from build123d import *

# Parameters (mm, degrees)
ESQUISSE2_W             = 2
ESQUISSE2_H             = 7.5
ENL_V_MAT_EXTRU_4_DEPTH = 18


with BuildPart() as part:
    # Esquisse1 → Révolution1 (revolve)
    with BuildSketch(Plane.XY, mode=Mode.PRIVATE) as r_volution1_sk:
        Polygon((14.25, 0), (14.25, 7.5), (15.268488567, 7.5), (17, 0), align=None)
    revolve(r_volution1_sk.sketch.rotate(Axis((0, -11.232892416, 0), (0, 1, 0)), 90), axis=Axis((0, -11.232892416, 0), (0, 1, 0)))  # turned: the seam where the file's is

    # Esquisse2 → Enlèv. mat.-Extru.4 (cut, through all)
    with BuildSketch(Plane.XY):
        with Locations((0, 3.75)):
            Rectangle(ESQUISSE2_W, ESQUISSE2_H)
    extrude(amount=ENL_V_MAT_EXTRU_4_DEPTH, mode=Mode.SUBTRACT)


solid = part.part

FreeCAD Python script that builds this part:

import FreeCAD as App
import Part
import Sketcher
Q = App.Units.Quantity

doc = App.newDocument("Part")
body = doc.addObject("PartDesign::Body", "Body")

# Sketch on XY plane
sketch1 = body.newObject("Sketcher::SketchObject", "Sketch")
sketch1.AttachmentSupport = (doc.getObject("XY_Plane"), [""])
sketch1.MapMode = "FlatFace"
sketch1.addGeometry(Part.LineSegment(App.Vector(14.2, 7.5, 0), App.Vector(14.2, 0, 0)), False)
sketch1.addGeometry(Part.LineSegment(App.Vector(14.2, 0, 0), App.Vector(17, 0, 0)), False)
sketch1.addGeometry(Part.LineSegment(App.Vector(17, 0, 0), App.Vector(15.3, 7.5, 0)), False)
sketch1.addGeometry(Part.LineSegment(App.Vector(15.3, 7.5, 0), App.Vector(14.2, 7.5, 0)), False)
sketch1.addConstraint(Sketcher.Constraint("Coincident", 0, 2, 1, 1))
sketch1.addConstraint(Sketcher.Constraint("Coincident", 1, 2, 2, 1))
sketch1.addConstraint(Sketcher.Constraint("Coincident", 2, 2, 3, 1))
sketch1.addConstraint(Sketcher.Constraint("Coincident", 3, 2, 0, 1))
sketch1.addConstraint(Sketcher.Constraint("Vertical", 0))
sketch1.addConstraint(Sketcher.Constraint("Horizontal", 1))
sketch1.addConstraint(Sketcher.Constraint("Horizontal", 3))
sketch1.addConstraint(Sketcher.Constraint("PointOnObject", 0, 2, -1))
sketch1.addConstraint(Sketcher.Constraint("Angle", 2, Q("103 deg")))
sketch1.addConstraint(Sketcher.Constraint("DistanceY", 0, 2, 0, 1, Q("7.5 mm")))
sketch1.addConstraint(Sketcher.Constraint("DistanceX", -1, 1, 1, 2, Q("17 mm")))
sketch1.addConstraint(Sketcher.Constraint("DistanceX", 1, 1, 1, 2, Q("2.75 mm")))
revolution = body.newObject("PartDesign::Revolution", "Revolution")
revolution.Profile = sketch1
revolution.ReferenceAxis = (sketch1, ["V_Axis"])
revolution.Angle = 360

# Sketch on XY plane
sketch2 = body.newObject("Sketcher::SketchObject", "Sketch001")
sketch2.AttachmentSupport = (doc.getObject("XY_Plane"), [""])
sketch2.MapMode = "FlatFace"
sketch2.addGeometry(Part.LineSegment(App.Vector(-1, 7.5, 0), App.Vector(-1, 0, 0)), False)
sketch2.addGeometry(Part.LineSegment(App.Vector(-1, 0, 0), App.Vector(1, 0, 0)), False)
sketch2.addGeometry(Part.LineSegment(App.Vector(1, 0, 0), App.Vector(1, 7.5, 0)), False)
sketch2.addGeometry(Part.LineSegment(App.Vector(1, 7.5, 0), App.Vector(-1, 7.5, 0)), False)
sketch2.addConstraint(Sketcher.Constraint("Coincident", 0, 2, 1, 1))
sketch2.addConstraint(Sketcher.Constraint("Coincident", 1, 2, 2, 1))
sketch2.addConstraint(Sketcher.Constraint("Coincident", 2, 2, 3, 1))
sketch2.addConstraint(Sketcher.Constraint("Coincident", 3, 2, 0, 1))
sketch2.addConstraint(Sketcher.Constraint("Vertical", 0))
sketch2.addConstraint(Sketcher.Constraint("Horizontal", 1))
sketch2.addConstraint(Sketcher.Constraint("Vertical", 2))
sketch2.addConstraint(Sketcher.Constraint("Horizontal", 3))
sketch2.addConstraint(Sketcher.Constraint("Symmetric", 0, 2, 1, 2, -1, 1))
sketch2.addConstraint(Sketcher.Constraint("DistanceX", 1, 1, 1, 2, Q("2 mm")))
sketch2.addConstraint(Sketcher.Constraint("DistanceY", 0, 2, 0, 1, Q("7.5 mm")))
pocket1 = body.newObject("PartDesign::Pocket", "Pocket")
pocket1.Profile = sketch2
pocket1.Type = "ThroughAll"
pocket1.Reversed = True

doc.recompute()
